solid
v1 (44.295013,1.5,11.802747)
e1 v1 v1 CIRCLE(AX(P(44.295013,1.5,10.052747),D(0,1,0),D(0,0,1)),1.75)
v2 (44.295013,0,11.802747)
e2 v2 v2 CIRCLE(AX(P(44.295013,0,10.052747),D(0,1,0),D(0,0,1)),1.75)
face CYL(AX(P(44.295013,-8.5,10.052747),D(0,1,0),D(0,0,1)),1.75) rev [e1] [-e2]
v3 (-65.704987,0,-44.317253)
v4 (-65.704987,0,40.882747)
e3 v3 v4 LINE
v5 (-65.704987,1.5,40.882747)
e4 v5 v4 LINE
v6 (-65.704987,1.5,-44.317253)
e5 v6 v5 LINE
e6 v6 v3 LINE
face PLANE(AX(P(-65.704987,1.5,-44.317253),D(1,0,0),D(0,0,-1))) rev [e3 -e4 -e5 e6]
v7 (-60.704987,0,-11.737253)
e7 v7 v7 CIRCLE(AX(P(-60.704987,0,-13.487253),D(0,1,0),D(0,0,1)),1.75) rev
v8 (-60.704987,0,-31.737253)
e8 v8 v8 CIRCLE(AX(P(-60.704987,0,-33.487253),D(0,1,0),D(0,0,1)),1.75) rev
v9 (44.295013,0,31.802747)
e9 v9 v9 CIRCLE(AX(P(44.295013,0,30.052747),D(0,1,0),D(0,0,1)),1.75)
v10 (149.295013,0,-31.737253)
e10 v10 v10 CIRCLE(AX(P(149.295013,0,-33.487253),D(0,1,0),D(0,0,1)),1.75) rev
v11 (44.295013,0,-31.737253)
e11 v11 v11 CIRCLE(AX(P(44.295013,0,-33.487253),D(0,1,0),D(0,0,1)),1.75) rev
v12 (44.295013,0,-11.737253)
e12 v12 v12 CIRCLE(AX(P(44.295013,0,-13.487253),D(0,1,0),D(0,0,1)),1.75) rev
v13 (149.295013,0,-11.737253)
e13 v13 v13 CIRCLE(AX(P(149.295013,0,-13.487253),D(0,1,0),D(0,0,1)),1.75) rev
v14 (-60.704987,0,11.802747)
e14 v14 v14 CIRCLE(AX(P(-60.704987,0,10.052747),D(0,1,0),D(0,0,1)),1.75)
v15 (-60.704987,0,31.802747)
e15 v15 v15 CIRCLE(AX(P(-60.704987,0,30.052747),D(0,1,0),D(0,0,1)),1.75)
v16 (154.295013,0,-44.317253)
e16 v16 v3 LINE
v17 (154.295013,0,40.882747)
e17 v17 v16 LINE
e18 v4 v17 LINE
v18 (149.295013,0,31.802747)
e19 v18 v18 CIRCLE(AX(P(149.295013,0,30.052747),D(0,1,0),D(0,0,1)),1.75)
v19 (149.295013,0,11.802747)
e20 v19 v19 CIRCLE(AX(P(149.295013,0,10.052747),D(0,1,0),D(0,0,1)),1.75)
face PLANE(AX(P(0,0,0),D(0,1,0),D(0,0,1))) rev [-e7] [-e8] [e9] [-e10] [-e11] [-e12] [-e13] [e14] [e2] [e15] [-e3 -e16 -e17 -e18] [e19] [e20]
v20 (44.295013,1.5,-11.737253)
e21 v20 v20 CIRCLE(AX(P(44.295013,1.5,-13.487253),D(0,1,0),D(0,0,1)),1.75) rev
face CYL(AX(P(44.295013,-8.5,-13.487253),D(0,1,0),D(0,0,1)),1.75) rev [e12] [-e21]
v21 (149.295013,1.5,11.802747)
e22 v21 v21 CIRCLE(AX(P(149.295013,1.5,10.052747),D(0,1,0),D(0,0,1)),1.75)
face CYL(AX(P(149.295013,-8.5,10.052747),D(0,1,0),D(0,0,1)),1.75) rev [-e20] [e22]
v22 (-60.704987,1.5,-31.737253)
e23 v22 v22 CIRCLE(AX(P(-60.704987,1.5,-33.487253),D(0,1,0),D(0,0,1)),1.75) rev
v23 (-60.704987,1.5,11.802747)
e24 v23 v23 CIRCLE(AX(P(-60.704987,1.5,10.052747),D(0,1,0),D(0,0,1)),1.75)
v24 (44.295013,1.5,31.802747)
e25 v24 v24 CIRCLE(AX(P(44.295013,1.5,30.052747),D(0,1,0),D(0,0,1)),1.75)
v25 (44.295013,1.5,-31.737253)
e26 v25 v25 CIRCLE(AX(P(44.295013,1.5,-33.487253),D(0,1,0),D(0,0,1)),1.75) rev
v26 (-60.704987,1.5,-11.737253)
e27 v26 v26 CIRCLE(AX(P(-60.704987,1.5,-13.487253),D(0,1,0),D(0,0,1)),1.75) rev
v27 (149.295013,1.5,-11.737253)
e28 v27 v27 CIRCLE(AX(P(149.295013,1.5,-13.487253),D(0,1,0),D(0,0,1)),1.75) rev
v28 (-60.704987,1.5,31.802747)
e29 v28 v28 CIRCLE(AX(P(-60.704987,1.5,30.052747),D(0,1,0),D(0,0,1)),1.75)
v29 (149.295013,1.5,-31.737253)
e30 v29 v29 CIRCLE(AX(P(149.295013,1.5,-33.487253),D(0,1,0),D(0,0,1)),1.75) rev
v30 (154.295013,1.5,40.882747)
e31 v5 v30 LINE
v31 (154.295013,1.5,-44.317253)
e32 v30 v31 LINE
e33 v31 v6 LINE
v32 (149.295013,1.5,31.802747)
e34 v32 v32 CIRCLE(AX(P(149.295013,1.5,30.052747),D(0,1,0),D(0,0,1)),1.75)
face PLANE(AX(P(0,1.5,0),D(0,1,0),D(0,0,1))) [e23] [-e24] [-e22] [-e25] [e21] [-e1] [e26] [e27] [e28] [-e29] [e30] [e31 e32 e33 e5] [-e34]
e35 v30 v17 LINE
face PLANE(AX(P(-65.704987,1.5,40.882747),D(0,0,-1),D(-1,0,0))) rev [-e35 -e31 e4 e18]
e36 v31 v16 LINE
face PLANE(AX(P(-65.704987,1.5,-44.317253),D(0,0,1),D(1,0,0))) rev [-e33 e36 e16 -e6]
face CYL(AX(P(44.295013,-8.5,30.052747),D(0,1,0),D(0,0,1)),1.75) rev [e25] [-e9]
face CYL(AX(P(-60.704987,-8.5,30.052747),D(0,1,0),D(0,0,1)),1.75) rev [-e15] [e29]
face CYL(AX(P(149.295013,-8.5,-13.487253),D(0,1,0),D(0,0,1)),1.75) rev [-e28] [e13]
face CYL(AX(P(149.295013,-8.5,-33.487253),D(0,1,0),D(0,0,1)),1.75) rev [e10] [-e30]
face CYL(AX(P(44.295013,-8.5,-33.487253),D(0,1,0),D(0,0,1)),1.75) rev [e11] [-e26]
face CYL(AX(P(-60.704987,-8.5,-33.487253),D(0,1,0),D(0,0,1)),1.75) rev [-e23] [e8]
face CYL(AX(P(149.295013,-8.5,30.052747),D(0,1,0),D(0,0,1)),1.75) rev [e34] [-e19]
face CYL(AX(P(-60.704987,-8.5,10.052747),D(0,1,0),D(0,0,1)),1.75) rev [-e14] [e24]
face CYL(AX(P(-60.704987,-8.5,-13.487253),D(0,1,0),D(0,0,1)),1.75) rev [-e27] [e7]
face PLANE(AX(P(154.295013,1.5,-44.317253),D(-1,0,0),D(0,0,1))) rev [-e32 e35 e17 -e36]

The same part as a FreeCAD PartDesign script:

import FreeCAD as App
import Part
import Sketcher


def add_polygon(sketch, points):
    """Adds a closed chain of lines whose ends are joined by coincident constraints."""
    first, n = sketch.GeometryCount, len(points)
    for a, b in zip(points, points[1:] + points[:1]):
        sketch.addGeometry(Part.LineSegment(App.Vector(*a, 0), App.Vector(*b, 0)), False)
    for i in range(n):
        sketch.addConstraint(Sketcher.Constraint("Coincident", first + i, 2, first + (i + 1) % n, 1))

doc = App.newDocument("Part")
body = doc.addObject("PartDesign::Body", "Body")

# Sketch on XZ plane
sketch1 = body.newObject("Sketcher::SketchObject", "Sketch")
sketch1.AttachmentSupport = (doc.getObject("XZ_Plane"), [""])
sketch1.MapMode = "FlatFace"
add_polygon(sketch1, [(-66, -44), (-66, 41), (154, 41), (154, -44)])  # lines 0-3
sketch1.addConstraint([
    Sketcher.Constraint("Vertical", 0),
    Sketcher.Constraint("Horizontal", 1),
    Sketcher.Constraint("Vertical", 2),
    Sketcher.Constraint("Horizontal", 3),
    Sketcher.Constraint("DistanceX", 1, 1, 1, 2, 220.0),
    Sketcher.Constraint("DistanceY", 0, 1, 0, 2, 85.2),
    Sketcher.Constraint("DistanceX", 0, 2, -1, 1, 65.704987),
    Sketcher.Constraint("DistanceY", -1, 1, 0, 2, 40.882747),
])
pad1 = body.newObject("PartDesign::Pad", "Pad")
pad1.Profile = sketch1
pad1.Length = 1.5
pad1.Reversed = True

# Sketch on XZ plane
sketch2 = body.newObject("Sketcher::SketchObject", "Sketch001")
sketch2.AttachmentSupport = (doc.getObject("XZ_Plane"), [""])
sketch2.MapMode = "FlatFace"
sketch2.AttachmentOffset = App.Placement(App.Vector(0, 0, -1.5), App.Rotation())
sketch2.addGeometry([
    Part.Circle(App.Vector(149.3, 30.1, 0), App.Vector(0, 0, 1), 1.8),  # 0
    Part.Circle(App.Vector(149.3, 10.1, 0), App.Vector(0, 0, 1), 1.8),  # 1
    Part.Circle(App.Vector(44.3, 10.1, 0), App.Vector(0, 0, 1), 1.8),  # 2
    Part.Circle(App.Vector(44.3, 30.1, 0), App.Vector(0, 0, 1), 1.8),  # 3
    Part.Circle(App.Vector(44.3, -13.5, 0), App.Vector(0, 0, 1), 1.8),  # 4
    Part.Circle(App.Vector(44.3, -33.5, 0), App.Vector(0, 0, 1), 1.8),  # 5
    Part.Circle(App.Vector(149.3, -13.5, 0), App.Vector(0, 0, 1), 1.8),  # 6
    Part.Circle(App.Vector(149.3, -33.5, 0), App.Vector(0, 0, 1), 1.8),  # 7
    Part.Circle(App.Vector(-60.7, -33.5, 0), App.Vector(0, 0, 1), 1.8),  # 8
    Part.Circle(App.Vector(-60.7, -13.5, 0), App.Vector(0, 0, 1), 1.8),  # 9
    Part.Circle(App.Vector(-60.7, 10.1, 0), App.Vector(0, 0, 1), 1.8),  # 10
    Part.Circle(App.Vector(-60.7, 30.1, 0), App.Vector(0, 0, 1), 1.8),  # 11
], False)
sketch2.addConstraint([
    Sketcher.Constraint("Equal", 0, 1),
    Sketcher.Constraint("Equal", 1, 2),
    Sketcher.Constraint("Equal", 2, 3),
    Sketcher.Constraint("Equal", 3, 4),
    Sketcher.Constraint("Equal", 4, 5),
    Sketcher.Constraint("Equal", 5, 6),
    Sketcher.Constraint("Equal", 6, 7),
    Sketcher.Constraint("Equal", 7, 8),
    Sketcher.Constraint("Equal", 8, 9),
    Sketcher.Constraint("Equal", 9, 10),
    Sketcher.Constraint("Equal", 10, 11),
    Sketcher.Constraint("Horizontal", 1, 3, 2, 3),
    Sketcher.Constraint("Horizontal", 0, 3, 3, 3),
    Sketcher.Constraint("Horizontal", 4, 3, 6, 3),
    Sketcher.Constraint("Horizontal", 5, 3, 7, 3),
    Sketcher.Constraint("Horizontal", 7, 3, 8, 3),
    Sketcher.Constraint("Horizontal", 6, 3, 9, 3),
    Sketcher.Constraint("Horizontal", 2, 3, 10, 3),
    Sketcher.Constraint("Horizontal", 3, 3, 11, 3),
    Sketcher.Constraint("Vertical", 0, 3, 1, 3),
    Sketcher.Constraint("Vertical", 2, 3, 3, 3),
    Sketcher.Constraint("Vertical", 3, 3, 4, 3),
    Sketcher.Constraint("Vertical", 4, 3, 5, 3),
    Sketcher.Constraint("Vertical", 1, 3, 6, 3),
    Sketcher.Constraint("Vertical", 6, 3, 7, 3),
    Sketcher.Constraint("Vertical", 8, 3, 9, 3),
    Sketcher.Constraint("Vertical", 9, 3, 10, 3),
    Sketcher.Constraint("Vertical", 10, 3, 11, 3),
    Sketcher.Constraint("Diameter", 0, 3.5),
    Sketcher.Constraint("DistanceY", 1, 3, 0, 3, 20.0),
    Sketcher.Constraint("DistanceX", 2, 3, 1, 3, 105.0),
    Sketcher.Constraint("DistanceY", 5, 3, 4, 3, 20.0),
    Sketcher.Constraint("DistanceX", 8, 3, 5, 3, 105.0),
    Sketcher.Constraint("DistanceY", 4, 3, 2, 3, 23.54),
    Sketcher.Constraint("DistanceX", -1, 1, 0, 3, 149.295013),
    Sketcher.Constraint("DistanceY", -1, 1, 0, 3, 30.052747),
])
pocket1 = body.newObject("PartDesign::Pocket", "Pocket")
pocket1.Profile = sketch2
pocket1.Length = 10
pocket1.Reversed = True

doc.recompute()
